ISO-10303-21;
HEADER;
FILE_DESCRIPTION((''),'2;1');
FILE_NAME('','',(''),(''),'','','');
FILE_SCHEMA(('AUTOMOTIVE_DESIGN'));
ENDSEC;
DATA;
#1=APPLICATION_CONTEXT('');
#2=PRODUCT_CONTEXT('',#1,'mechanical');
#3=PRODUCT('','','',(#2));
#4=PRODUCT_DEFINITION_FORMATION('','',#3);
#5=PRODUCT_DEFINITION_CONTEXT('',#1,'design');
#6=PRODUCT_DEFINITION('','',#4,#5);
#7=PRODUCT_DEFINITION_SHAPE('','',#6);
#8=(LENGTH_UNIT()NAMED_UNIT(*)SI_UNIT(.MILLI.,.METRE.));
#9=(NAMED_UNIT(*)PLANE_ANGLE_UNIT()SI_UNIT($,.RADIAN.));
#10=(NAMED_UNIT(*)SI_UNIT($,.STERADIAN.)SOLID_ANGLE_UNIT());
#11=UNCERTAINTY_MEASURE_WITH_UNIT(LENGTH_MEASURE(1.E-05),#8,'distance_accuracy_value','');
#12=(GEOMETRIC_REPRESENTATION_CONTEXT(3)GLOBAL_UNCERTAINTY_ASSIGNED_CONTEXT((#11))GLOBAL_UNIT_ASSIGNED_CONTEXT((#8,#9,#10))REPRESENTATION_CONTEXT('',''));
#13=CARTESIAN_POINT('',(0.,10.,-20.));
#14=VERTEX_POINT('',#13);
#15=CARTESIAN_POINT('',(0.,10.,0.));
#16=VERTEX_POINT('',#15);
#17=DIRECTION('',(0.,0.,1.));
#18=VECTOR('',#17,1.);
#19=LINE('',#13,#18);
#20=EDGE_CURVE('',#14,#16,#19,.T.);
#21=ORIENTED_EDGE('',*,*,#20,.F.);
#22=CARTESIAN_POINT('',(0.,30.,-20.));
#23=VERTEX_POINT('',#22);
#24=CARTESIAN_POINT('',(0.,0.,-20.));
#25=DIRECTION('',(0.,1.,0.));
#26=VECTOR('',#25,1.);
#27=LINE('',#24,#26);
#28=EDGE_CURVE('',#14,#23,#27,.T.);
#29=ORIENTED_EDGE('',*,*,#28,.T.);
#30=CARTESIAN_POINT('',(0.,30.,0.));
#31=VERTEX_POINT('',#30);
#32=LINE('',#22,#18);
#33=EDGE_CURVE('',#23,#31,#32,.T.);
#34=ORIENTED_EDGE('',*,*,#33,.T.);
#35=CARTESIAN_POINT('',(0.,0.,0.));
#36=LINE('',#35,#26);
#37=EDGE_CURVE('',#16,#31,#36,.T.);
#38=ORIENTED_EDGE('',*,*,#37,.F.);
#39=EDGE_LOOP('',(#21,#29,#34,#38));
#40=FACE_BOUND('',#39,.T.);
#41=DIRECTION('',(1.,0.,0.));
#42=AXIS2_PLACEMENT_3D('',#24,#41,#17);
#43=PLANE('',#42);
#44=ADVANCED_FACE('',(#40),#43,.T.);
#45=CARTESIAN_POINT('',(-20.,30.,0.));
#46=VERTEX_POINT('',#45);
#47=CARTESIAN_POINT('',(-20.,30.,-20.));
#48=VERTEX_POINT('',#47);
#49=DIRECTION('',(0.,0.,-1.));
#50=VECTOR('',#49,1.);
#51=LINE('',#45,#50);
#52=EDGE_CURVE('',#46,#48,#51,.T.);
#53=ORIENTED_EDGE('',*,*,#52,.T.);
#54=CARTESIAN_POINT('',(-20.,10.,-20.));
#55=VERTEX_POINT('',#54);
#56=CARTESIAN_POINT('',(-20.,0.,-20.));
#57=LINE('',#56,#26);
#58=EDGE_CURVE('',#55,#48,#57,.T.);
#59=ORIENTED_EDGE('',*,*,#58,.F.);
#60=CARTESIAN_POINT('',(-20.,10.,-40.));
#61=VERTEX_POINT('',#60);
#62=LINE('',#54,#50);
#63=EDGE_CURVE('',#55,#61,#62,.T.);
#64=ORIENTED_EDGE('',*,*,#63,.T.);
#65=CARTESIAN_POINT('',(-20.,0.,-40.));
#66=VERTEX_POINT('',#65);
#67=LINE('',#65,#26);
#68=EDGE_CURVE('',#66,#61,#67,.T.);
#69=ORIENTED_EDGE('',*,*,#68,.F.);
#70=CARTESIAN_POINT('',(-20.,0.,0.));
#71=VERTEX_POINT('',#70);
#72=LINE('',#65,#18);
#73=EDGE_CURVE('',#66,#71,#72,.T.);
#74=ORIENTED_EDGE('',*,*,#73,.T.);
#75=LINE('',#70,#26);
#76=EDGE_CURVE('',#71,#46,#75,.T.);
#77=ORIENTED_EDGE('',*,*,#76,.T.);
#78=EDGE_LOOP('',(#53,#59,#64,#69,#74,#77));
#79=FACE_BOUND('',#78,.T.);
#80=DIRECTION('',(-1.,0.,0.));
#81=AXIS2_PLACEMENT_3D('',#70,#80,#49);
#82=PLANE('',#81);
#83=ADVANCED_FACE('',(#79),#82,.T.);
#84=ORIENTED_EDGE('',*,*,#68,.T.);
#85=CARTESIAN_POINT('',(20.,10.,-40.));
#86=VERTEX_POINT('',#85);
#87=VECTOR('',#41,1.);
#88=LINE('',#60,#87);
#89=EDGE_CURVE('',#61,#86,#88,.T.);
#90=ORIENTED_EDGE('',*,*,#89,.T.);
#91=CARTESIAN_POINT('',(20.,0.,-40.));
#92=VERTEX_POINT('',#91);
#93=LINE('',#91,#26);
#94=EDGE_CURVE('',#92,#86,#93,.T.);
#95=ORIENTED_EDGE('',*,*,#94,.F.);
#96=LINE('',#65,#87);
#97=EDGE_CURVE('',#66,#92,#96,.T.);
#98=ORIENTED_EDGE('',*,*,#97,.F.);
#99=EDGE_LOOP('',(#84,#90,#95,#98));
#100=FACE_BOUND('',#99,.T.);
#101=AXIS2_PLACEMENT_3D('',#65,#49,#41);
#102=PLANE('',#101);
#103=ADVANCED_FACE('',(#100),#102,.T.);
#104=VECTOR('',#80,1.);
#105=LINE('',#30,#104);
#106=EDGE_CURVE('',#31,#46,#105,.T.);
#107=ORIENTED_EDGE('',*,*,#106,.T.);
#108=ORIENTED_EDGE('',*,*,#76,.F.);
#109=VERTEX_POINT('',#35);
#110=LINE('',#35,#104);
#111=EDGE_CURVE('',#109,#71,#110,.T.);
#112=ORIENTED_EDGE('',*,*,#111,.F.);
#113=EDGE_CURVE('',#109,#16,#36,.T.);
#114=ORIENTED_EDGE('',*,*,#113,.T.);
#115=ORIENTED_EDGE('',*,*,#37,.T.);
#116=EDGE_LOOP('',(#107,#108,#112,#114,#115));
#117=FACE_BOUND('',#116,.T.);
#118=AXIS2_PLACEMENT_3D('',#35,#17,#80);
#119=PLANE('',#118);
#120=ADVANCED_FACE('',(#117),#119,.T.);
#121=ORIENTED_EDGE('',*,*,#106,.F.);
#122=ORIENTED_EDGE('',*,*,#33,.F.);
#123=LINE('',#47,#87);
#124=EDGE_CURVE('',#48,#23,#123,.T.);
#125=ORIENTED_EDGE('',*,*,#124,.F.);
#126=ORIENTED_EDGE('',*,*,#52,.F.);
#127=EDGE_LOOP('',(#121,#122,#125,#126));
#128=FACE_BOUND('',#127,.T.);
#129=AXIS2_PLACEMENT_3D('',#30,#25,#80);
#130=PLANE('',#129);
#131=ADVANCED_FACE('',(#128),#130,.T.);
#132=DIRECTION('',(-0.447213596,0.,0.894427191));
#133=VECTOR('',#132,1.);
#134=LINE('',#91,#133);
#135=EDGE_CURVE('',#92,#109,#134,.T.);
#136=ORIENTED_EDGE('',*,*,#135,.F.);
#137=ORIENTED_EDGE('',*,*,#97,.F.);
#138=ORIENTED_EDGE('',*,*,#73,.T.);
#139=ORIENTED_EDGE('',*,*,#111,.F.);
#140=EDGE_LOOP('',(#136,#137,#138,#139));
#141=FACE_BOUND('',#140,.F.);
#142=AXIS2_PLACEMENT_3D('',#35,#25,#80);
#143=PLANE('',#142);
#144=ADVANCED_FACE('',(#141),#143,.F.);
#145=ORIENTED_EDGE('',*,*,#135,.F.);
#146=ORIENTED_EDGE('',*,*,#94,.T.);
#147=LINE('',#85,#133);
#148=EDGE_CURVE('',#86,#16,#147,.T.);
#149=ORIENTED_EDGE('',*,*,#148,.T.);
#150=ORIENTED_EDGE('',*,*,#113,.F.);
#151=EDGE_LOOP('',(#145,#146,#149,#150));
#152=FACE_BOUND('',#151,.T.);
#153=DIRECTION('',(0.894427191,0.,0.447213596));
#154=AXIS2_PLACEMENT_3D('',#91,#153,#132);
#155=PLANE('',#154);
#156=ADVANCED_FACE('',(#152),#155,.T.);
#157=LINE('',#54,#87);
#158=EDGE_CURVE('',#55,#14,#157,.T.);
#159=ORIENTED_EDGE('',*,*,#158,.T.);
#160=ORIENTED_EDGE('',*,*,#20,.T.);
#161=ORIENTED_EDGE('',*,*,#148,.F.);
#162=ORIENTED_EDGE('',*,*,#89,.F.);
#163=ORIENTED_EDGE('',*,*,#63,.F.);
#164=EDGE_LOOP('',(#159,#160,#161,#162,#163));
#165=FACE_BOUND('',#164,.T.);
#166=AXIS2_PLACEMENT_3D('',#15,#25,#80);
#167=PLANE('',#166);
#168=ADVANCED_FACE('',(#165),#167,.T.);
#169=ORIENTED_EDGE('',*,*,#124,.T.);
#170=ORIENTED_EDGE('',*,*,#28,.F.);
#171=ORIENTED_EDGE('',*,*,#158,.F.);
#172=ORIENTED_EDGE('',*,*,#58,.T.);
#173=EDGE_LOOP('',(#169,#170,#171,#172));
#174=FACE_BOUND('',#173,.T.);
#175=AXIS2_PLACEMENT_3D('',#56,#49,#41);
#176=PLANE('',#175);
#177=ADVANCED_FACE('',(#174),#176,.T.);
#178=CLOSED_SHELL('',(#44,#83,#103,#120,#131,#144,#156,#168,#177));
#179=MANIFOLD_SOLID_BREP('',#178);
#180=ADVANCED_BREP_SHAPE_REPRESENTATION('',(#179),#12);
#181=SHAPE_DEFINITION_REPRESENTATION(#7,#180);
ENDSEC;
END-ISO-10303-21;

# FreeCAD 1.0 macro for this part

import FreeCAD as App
import Part
import Sketcher
Q = App.Units.Quantity

doc = App.newDocument("Part")
params = doc.addObject("Spreadsheet::Sheet", "Params")
for row, (alias, value) in enumerate([
    ("sketch1_width", "20 mm"),
    ("pad1_length", "30 mm"),
    ("sketch2_width", "40 mm"),
    ("sketch2_width2", "20 mm"),
    ("pad2_length", "10 mm"),
], start=1):
    params.set(f"A{row}", alias)
    params.set(f"B{row}", "=" + value)
    params.setAlias(f"B{row}", alias)

body = doc.addObject("PartDesign::Body", "Body")

# Sketch on XZ plane
sketch1 = body.newObject("Sketcher::SketchObject", "Sketch")
sketch1.AttachmentSupport = (doc.getObject("XZ_Plane"), [""])
sketch1.MapMode = "FlatFace"
sketch1.addGeometry([
    Part.LineSegment(App.Vector(-20, 0, 0), App.Vector(0, 0, 0)),
    Part.LineSegment(App.Vector(0, 0, 0), App.Vector(0, -20, 0)),
    Part.LineSegment(App.Vector(0, -20, 0), App.Vector(-20, -20, 0)),
    Part.LineSegment(App.Vector(-20, -20, 0), App.Vector(-20, 0, 0)),
], False)
sketch1.addConstraint([
    Sketcher.Constraint("Coincident", 0, 2, 1, 1),
    Sketcher.Constraint("Coincident", 1, 2, 2, 1),
    Sketcher.Constraint("Coincident", 2, 2, 3, 1),
    Sketcher.Constraint("Coincident", 3, 2, 0, 1),
    Sketcher.Constraint("Horizontal", 0),
    Sketcher.Constraint("Vertical", 1),
    Sketcher.Constraint("Horizontal", 2),
    Sketcher.Constraint("Vertical", 3),
    Sketcher.Constraint("Coincident", 0, 2, -1, 1),
    Sketcher.Constraint("Equal", 2, 1),
    Sketcher.Constraint("DistanceX", 0, 1, 0, 2, Q("20 mm")),
])
sketch1.setExpression("Constraints[10]", "Params.sketch1_width")
pad1 = body.newObject("PartDesign::Pad", "Pad")
pad1.Profile = sketch1
pad1.setExpression("Length", "Params.pad1_length")
pad1.Reversed = True

# Sketch on XZ plane
sketch2 = body.newObject("Sketcher::SketchObject", "Sketch001")
sketch2.AttachmentSupport = (doc.getObject("XZ_Plane"), [""])
sketch2.MapMode = "FlatFace"
sketch2.addGeometry([
    Part.LineSegment(App.Vector(0, -20, 0), App.Vector(0, 0, 0)),  # 0
    Part.LineSegment(App.Vector(0, 0, 0), App.Vector(20, -40, 0)),  # 1
    Part.LineSegment(App.Vector(20, -40, 0), App.Vector(-20, -40, 0)),  # 2
    Part.LineSegment(App.Vector(-20, -40, 0), App.Vector(-20, -20, 0)),  # 3
    Part.LineSegment(App.Vector(-20, -20, 0), App.Vector(0, -20, 0)),  # 4
], False)
sketch2.addConstraint([
    Sketcher.Constraint("Coincident", 0, 2, 1, 1),
    Sketcher.Constraint("Coincident", 1, 2, 2, 1),
    Sketcher.Constraint("Coincident", 2, 2, 3, 1),
    Sketcher.Constraint("Coincident", 3, 2, 4, 1),
    Sketcher.Constraint("Coincident", 4, 2, 0, 1),
    Sketcher.Constraint("Vertical", 0),
    Sketcher.Constraint("Horizontal", 2),
    Sketcher.Constraint("Vertical", 3),
    Sketcher.Constraint("Horizontal", 4),
    Sketcher.Constraint("Coincident", 0, 2, -1, 1),
    Sketcher.Constraint("Equal", 4, 0),
    Sketcher.Constraint("Equal", 0, 3),
    Sketcher.Constraint("DistanceX", 2, 2, 2, 1, Q("40 mm")),
    Sketcher.Constraint("DistanceX", 4, 1, 4, 2, Q("20 mm")),
])
sketch2.setExpression("Constraints[12]", "Params.sketch2_width")
sketch2.setExpression("Constraints[13]", "Params.sketch2_width2")
pad2 = body.newObject("PartDesign::Pad", "Pad001")
pad2.Profile = sketch2
pad2.setExpression("Length", "Params.pad2_length")
pad2.Reversed = True

doc.recompute()
